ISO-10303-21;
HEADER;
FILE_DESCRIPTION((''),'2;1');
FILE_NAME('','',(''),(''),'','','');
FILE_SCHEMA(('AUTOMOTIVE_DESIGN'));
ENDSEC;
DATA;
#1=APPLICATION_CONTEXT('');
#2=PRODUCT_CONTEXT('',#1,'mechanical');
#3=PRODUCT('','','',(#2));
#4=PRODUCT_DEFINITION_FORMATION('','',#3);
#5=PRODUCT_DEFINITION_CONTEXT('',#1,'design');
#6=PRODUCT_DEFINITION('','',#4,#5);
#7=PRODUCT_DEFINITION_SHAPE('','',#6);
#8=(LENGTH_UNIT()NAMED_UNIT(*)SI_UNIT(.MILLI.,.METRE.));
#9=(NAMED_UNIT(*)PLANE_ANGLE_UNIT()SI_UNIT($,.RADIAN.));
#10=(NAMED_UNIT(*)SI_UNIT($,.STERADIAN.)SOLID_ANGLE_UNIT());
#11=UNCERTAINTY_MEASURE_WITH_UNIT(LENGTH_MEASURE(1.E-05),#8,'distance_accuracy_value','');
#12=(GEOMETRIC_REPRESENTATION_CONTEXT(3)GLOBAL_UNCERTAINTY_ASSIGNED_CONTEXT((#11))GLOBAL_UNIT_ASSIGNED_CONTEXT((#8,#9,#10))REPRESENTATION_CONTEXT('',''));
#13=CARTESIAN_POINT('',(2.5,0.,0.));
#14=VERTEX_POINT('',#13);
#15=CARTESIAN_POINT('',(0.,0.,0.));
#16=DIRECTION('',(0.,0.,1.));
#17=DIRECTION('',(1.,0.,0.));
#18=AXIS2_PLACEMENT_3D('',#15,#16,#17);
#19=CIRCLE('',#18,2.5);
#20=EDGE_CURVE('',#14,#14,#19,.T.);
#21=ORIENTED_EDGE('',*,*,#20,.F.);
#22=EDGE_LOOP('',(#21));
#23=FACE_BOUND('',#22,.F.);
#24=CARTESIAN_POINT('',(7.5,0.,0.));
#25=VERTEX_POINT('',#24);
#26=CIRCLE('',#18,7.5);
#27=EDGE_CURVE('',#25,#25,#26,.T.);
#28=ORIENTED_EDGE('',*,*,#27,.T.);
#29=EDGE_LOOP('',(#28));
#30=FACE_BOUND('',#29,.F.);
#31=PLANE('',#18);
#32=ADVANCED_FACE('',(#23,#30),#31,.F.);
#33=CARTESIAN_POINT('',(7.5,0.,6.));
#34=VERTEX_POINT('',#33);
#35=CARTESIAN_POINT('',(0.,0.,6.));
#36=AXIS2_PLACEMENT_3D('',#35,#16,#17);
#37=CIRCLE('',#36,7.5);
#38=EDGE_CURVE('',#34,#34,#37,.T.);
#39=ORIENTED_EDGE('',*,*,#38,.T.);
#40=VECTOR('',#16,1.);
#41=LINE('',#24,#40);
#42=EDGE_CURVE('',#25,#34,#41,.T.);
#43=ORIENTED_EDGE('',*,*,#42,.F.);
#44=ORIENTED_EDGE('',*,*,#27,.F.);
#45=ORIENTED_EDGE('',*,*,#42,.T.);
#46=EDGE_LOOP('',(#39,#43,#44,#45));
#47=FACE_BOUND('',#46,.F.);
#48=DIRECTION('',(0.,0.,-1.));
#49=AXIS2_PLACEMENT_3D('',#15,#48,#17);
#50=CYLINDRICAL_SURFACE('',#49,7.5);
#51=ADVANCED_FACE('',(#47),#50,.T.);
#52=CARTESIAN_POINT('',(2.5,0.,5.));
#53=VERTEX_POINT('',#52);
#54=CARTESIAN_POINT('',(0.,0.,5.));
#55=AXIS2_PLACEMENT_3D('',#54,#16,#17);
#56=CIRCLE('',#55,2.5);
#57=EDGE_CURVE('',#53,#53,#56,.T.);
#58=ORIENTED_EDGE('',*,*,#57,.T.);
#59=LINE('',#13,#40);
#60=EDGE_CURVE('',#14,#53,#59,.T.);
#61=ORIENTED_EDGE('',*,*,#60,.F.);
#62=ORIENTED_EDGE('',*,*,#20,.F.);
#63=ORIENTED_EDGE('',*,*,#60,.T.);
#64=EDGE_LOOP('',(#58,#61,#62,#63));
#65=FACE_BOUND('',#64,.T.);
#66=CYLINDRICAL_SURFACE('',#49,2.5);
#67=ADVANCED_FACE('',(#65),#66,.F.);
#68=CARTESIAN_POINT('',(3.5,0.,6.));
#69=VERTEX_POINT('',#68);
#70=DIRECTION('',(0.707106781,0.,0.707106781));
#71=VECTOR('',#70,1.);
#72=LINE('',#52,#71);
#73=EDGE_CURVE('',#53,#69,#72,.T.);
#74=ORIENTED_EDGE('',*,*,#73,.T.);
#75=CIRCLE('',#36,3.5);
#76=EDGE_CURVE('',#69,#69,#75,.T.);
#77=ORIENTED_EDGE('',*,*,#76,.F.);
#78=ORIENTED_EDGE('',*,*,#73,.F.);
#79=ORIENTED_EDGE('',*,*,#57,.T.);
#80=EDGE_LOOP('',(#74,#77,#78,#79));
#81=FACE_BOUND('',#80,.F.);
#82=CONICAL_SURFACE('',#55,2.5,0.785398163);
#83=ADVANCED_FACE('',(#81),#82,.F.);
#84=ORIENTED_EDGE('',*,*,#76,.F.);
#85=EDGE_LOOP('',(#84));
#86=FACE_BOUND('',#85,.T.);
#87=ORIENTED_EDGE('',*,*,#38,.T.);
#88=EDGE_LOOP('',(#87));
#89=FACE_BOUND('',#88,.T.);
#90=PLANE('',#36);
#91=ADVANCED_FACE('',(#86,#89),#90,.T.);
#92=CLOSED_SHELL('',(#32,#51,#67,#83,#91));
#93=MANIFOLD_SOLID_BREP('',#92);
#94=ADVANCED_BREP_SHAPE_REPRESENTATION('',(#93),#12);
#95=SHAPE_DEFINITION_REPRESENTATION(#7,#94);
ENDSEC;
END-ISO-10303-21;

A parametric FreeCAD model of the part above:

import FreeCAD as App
import Part
import Sketcher

V = App.Vector


def edges_at(feature, points):
    """Names of the edges that pass closest to the given points."""
    edges = feature.Shape.Edges
    near = lambda p: min(range(len(edges)), key=lambda i: edges[i].distToShape(Part.Vertex(*p))[0])
    return sorted({f"Edge{near(p) + 1}" for p in points})

doc = App.newDocument("Part")
body = doc.addObject("PartDesign::Body", "Body")

# Sketch on XY plane
sketch1 = body.newObject("Sketcher::SketchObject", "Sketch")
sketch1.AttachmentSupport = (doc.getObject("XY_Plane"), [""])
sketch1.MapMode = "FlatFace"
sketch1.addGeometry([
    Part.Circle(V(0, 0, 0), V(0, 0, 1), 7.5),
    Part.Circle(V(0, 0, 0), V(0, 0, 1), 2.5),
], False)
sketch1.addConstraint([
    Sketcher.Constraint("Coincident", 0, 3, -1, 1),
    Sketcher.Constraint("Coincident", 1, 3, -1, 1),
    Sketcher.Constraint("Diameter", 0, 15.0),
    Sketcher.Constraint("Diameter", 1, 5.0),
])
pad1 = body.newObject("PartDesign::Pad", "Pad")
pad1.Profile = sketch1
pad1.Length = 6
doc.recompute()

chamfer = body.newObject("PartDesign::Chamfer", "Chamfer")
chamfer.Base = (pad1, edges_at(pad1, [(-2.5, 0, 6)]))
chamfer.Size = 1

doc.recompute()
